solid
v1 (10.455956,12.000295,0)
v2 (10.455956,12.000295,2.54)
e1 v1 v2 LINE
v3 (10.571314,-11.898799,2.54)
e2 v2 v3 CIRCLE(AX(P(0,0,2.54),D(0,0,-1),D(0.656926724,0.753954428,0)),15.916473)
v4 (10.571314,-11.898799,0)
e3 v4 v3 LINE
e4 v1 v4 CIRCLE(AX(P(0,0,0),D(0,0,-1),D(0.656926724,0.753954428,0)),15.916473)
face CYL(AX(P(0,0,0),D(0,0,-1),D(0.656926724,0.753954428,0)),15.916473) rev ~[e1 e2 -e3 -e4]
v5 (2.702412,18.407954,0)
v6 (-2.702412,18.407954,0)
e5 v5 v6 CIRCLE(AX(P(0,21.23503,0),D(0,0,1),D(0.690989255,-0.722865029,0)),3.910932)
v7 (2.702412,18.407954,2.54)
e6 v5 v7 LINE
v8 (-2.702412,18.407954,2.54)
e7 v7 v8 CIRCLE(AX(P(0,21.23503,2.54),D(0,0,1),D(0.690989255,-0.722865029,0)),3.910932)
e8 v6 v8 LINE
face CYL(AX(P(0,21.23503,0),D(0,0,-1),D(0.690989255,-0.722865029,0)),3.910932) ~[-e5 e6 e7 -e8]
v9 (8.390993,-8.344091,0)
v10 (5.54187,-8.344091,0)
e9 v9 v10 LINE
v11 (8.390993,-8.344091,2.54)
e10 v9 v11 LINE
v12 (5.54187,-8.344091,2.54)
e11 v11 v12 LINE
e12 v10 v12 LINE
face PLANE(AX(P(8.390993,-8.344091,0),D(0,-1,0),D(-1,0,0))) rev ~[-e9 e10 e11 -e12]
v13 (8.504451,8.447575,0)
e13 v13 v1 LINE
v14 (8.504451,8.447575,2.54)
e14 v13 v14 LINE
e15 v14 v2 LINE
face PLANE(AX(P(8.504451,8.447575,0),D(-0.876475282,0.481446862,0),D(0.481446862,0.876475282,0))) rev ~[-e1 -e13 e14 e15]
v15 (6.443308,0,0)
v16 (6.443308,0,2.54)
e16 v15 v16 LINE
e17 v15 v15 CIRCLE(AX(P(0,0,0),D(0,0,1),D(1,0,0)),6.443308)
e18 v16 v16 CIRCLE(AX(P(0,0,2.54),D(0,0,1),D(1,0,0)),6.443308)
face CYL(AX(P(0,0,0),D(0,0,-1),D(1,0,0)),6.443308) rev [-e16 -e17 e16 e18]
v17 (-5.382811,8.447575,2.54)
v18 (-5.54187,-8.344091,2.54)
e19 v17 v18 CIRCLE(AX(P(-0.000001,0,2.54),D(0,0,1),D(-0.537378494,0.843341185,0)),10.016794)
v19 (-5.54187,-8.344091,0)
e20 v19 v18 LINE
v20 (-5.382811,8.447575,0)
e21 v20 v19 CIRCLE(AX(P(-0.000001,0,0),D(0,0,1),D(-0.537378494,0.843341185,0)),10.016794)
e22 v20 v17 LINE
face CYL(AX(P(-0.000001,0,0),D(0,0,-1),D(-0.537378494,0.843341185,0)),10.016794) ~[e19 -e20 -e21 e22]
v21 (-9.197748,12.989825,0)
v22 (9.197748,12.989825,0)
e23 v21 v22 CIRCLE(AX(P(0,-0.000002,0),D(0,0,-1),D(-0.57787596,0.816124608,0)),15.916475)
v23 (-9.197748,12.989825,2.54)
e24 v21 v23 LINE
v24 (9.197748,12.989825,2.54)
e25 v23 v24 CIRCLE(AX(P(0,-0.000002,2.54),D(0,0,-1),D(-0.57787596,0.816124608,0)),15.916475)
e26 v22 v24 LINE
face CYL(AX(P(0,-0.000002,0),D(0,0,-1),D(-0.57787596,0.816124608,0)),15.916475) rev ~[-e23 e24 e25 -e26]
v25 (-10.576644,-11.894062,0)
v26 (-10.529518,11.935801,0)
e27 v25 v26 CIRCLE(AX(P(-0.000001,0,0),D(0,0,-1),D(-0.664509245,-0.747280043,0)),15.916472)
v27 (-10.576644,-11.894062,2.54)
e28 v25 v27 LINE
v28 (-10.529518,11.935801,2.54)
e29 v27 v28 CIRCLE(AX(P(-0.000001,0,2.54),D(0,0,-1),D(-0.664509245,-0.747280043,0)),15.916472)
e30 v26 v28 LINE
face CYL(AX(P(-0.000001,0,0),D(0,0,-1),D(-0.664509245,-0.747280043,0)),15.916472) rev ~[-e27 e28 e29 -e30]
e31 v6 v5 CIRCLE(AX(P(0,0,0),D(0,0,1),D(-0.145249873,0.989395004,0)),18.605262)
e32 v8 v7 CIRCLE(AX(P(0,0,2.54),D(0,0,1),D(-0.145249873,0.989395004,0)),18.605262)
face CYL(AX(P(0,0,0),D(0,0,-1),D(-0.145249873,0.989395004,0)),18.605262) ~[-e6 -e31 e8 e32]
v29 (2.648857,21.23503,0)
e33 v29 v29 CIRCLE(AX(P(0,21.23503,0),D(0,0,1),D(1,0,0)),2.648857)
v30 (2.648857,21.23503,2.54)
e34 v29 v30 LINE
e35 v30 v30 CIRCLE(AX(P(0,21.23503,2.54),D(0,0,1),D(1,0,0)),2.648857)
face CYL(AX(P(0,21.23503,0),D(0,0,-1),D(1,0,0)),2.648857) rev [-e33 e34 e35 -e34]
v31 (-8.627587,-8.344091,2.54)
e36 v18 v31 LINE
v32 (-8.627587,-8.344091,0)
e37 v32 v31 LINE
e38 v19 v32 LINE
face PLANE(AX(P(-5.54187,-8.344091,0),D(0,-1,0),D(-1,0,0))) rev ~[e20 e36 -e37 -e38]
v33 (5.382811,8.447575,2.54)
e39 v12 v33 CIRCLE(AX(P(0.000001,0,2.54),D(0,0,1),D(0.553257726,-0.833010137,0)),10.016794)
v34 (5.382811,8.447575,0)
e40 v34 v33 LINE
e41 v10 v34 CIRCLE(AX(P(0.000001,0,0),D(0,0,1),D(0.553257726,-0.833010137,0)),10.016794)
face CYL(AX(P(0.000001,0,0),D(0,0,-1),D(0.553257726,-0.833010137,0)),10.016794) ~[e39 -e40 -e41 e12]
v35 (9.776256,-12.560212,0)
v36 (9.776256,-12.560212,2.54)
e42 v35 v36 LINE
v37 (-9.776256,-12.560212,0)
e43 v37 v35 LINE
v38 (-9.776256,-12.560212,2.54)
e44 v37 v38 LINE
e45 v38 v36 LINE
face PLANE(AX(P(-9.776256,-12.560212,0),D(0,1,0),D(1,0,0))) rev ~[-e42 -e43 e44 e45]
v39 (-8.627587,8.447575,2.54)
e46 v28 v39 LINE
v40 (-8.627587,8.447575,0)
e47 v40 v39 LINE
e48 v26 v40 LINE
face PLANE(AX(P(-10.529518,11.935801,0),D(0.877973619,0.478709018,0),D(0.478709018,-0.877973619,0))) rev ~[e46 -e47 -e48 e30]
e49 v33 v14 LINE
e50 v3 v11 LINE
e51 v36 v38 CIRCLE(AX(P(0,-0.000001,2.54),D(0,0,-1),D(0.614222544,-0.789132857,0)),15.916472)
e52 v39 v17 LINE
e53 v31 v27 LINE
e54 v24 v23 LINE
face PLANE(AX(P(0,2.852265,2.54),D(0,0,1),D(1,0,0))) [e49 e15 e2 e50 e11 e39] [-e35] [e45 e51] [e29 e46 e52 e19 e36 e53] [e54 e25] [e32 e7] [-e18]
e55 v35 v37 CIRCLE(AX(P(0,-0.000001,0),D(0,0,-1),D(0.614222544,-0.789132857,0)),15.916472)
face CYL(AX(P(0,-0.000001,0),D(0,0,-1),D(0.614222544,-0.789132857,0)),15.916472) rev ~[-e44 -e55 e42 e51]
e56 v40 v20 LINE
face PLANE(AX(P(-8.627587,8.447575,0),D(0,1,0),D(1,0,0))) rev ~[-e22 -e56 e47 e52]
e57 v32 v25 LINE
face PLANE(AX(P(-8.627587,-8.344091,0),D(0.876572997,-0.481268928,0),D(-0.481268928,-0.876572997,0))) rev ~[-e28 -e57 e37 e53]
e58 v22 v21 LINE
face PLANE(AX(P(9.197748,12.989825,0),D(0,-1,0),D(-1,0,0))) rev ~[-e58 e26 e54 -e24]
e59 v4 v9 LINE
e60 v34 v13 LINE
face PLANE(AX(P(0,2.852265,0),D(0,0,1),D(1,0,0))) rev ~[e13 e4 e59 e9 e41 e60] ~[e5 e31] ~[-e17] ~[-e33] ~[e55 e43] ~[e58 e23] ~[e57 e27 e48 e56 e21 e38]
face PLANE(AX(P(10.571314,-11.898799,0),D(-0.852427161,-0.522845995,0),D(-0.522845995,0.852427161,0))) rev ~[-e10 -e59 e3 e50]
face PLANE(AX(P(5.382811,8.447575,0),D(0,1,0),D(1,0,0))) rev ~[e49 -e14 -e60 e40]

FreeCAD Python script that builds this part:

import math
import FreeCAD as App
import Part
import Sketcher

V = App.Vector
Q = App.Units.Quantity

doc = App.newDocument("Part")
params = doc.addObject("Spreadsheet::Sheet", "Params")
for row, (alias, value) in enumerate([
    ("pad1_length", "0.1 in"),
], start=1):
    params.set(f"A{row}", alias)
    params.set(f"B{row}", "=" + value)
    params.setAlias(f"B{row}", alias)

body = doc.addObject("PartDesign::Body", "Body")

sketch1 = body.newObject("Sketcher::SketchObject", "Sketch")
sketch1.AttachmentSupport = (doc.getObject("XY_Plane"), [""])
sketch1.MapMode = "FlatFace"
sketch1.addGeometry(Part.ArcOfCircle(Part.Circle(V(0, 0, 0), V(0, 0, 1), 18.6), math.radians(98), math.radians(442)), False)
sketch1.addGeometry(Part.ArcOfCircle(Part.Circle(V(0, 21.2, 0), V(0, 0, 1), 3.9), math.radians(-46), math.radians(226)), False)
sketch1.addGeometry(Part.LineSegment(V(-8.6, -8.3, 0), V(-10.6, -11.9, 0)), False)
sketch1.addGeometry(Part.ArcOfCircle(Part.Circle(V(0, 0, 0), V(0, 0, 1), 15.9), math.radians(131), math.radians(228)), False)
sketch1.addGeometry(Part.LineSegment(V(-10.5, 11.9, 0), V(-8.6, 8.4, 0)), False)
sketch1.addGeometry(Part.LineSegment(V(-8.6, 8.4, 0), V(-5.4, 8.4, 0)), False)
sketch1.addGeometry(Part.ArcOfCircle(Part.Circle(V(0, 0, 0), V(0, 0, 1), 10), math.radians(123), math.radians(236)), False)
sketch1.addGeometry(Part.LineSegment(V(-5.5, -8.3, 0), V(-8.6, -8.3, 0)), False)
sketch1.addGeometry(Part.LineSegment(V(-9.8, -12.6, 0), V(9.8, -12.6, 0)), False)
sketch1.addGeometry(Part.ArcOfCircle(Part.Circle(V(0, 0, 0), V(0, 0, 1), 15.9), math.radians(-128), math.radians(-52)), False)
sketch1.addGeometry(Part.Circle(V(0, 0, 0), V(0, 0, 1), 6.4), False)
sketch1.addGeometry(Part.ArcOfCircle(Part.Circle(V(0, 0, 0), V(0, 0, 1), 10), math.radians(-56), math.radians(57)), False)
sketch1.addGeometry(Part.LineSegment(V(5.4, 8.4, 0), V(8.5, 8.4, 0)), False)
sketch1.addGeometry(Part.LineSegment(V(8.5, 8.4, 0), V(10.5, 12, 0)), False)
sketch1.addGeometry(Part.ArcOfCircle(Part.Circle(V(0, 0, 0), V(0, 0, 1), 15.9), math.radians(-48), math.radians(49)), False)
sketch1.addGeometry(Part.LineSegment(V(10.6, -11.9, 0), V(8.4, -8.3, 0)), False)
sketch1.addGeometry(Part.LineSegment(V(8.4, -8.3, 0), V(5.5, -8.3, 0)), False)
sketch1.addGeometry(Part.LineSegment(V(9.2, 13, 0), V(-9.2, 13, 0)), False)
sketch1.addGeometry(Part.ArcOfCircle(Part.Circle(V(0, 0, 0), V(0, 0, 1), 15.9), math.radians(55), math.radians(125)), False)
sketch1.addGeometry(Part.Circle(V(0, 21.2, 0), V(0, 0, 1), 2.6), False)
sketch1.addConstraint(Sketcher.Constraint("Coincident", 0, 1, 1, 2))
sketch1.addConstraint(Sketcher.Constraint("Coincident", 1, 1, 0, 2))
sketch1.addConstraint(Sketcher.Constraint("Coincident", 2, 2, 3, 2))
sketch1.addConstraint(Sketcher.Constraint("Coincident", 3, 1, 4, 1))
sketch1.addConstraint(Sketcher.Constraint("Coincident", 4, 2, 5, 1))
sketch1.addConstraint(Sketcher.Constraint("Coincident", 5, 2, 6, 1))
sketch1.addConstraint(Sketcher.Constraint("Coincident", 6, 2, 7, 1))
sketch1.addConstraint(Sketcher.Constraint("Coincident", 7, 2, 2, 1))
sketch1.addConstraint(Sketcher.Constraint("Coincident", 8, 1, 9, 1))
sketch1.addConstraint(Sketcher.Constraint("Coincident", 9, 2, 8, 2))
sketch1.addConstraint(Sketcher.Constraint("Coincident", 11, 2, 12, 1))
sketch1.addConstraint(Sketcher.Constraint("Coincident", 12, 2, 13, 1))
sketch1.addConstraint(Sketcher.Constraint("Coincident", 13, 2, 14, 2))
sketch1.addConstraint(Sketcher.Constraint("Coincident", 14, 1, 15, 1))
sketch1.addConstraint(Sketcher.Constraint("Coincident", 15, 2, 16, 1))
sketch1.addConstraint(Sketcher.Constraint("Coincident", 16, 2, 11, 1))
sketch1.addConstraint(Sketcher.Constraint("Coincident", 17, 1, 18, 1))
sketch1.addConstraint(Sketcher.Constraint("Coincident", 18, 2, 17, 2))
sketch1.addConstraint(Sketcher.Constraint("Horizontal", 5))
sketch1.addConstraint(Sketcher.Constraint("Horizontal", 7))
sketch1.addConstraint(Sketcher.Constraint("Horizontal", 8))
sketch1.addConstraint(Sketcher.Constraint("Horizontal", 12))
sketch1.addConstraint(Sketcher.Constraint("Horizontal", 16))
sketch1.addConstraint(Sketcher.Constraint("Horizontal", 17))
sketch1.addConstraint(Sketcher.Constraint("Coincident", 0, 3, -1, 1))
sketch1.addConstraint(Sketcher.Constraint("Coincident", 3, 3, -1, 1))
sketch1.addConstraint(Sketcher.Constraint("Coincident", 6, 3, -1, 1))
sketch1.addConstraint(Sketcher.Constraint("Coincident", 9, 3, -1, 1))
sketch1.addConstraint(Sketcher.Constraint("Coincident", 10, 3, -1, 1))
sketch1.addConstraint(Sketcher.Constraint("Coincident", 11, 3, -1, 1))
sketch1.addConstraint(Sketcher.Constraint("Coincident", 14, 3, -1, 1))
sketch1.addConstraint(Sketcher.Constraint("Coincident", 18, 3, -1, 1))
sketch1.addConstraint(Sketcher.Constraint("Coincident", 19, 3, 1, 3))
sketch1.addConstraint(Sketcher.Constraint("Equal", 3, 9))
sketch1.addConstraint(Sketcher.Constraint("Equal", 6, 11))
sketch1.addConstraint(Sketcher.Constraint("Equal", 9, 14))
sketch1.addConstraint(Sketcher.Constraint("Equal", 14, 18))
sketch1.addConstraint(Sketcher.Constraint("PointOnObject", 1, 3, -2))
sketch1.addConstraint(Sketcher.Constraint("Horizontal", 5, 2, 11, 2))
sketch1.addConstraint(Sketcher.Constraint("Horizontal", 7, 2, 15, 2))
sketch1.addConstraint(Sketcher.Constraint("Vertical", 4, 2, 7, 2))
sketch1.addConstraint(Sketcher.Constraint("Radius", 3, Q("15.916472 mm")))
sketch1.addConstraint(Sketcher.Constraint("Diameter", 10, Q("12.886616 mm")))
sketch1.addConstraint(Sketcher.Constraint("Diameter", 19, Q("5.297714 mm")))
sketch1.addConstraint(Sketcher.Constraint("Radius", 0, Q("18.605262 mm")))
sketch1.addConstraint(Sketcher.Constraint("Radius", 1, Q("3.910932 mm")))
sketch1.addConstraint(Sketcher.Constraint("Radius", 6, Q("10.016794 mm")))
sketch1.addConstraint(Sketcher.Constraint("Distance", 15, Q("4.170102 mm")))
sketch1.addConstraint(Sketcher.Constraint("DistanceX", 8, 1, 8, 2, Q("19.552512 mm")))
sketch1.addConstraint(Sketcher.Constraint("DistanceX", 12, 1, 12, 2, Q("3.12164 mm")))
sketch1.addConstraint(Sketcher.Constraint("DistanceY", -1, 1, 3, 1, Q("11.935801 mm")))
sketch1.addConstraint(Sketcher.Constraint("DistanceY", 14, 1, -1, 1, Q("11.898799 mm")))
sketch1.addConstraint(Sketcher.Constraint("Distance", 2, Q("4.049829 mm")))
sketch1.addConstraint(Sketcher.Constraint("Distance", 4, Q("3.973042 mm")))
sketch1.addConstraint(Sketcher.Constraint("DistanceX", 5, 1, 5, 2, Q("3.244776 mm")))
sketch1.addConstraint(Sketcher.Constraint("DistanceX", 7, 2, 7, 1, Q("3.085717 mm")))
sketch1.addConstraint(Sketcher.Constraint("DistanceX", 17, 2, 17, 1, Q("18.395496 mm")))
sketch1.addConstraint(Sketcher.Constraint("DistanceY", -1, 1, 1, 3, Q("21.23503 mm")))
sketch1.addConstraint(Sketcher.Constraint("DistanceY", 12, 2, 13, 2, Q("3.55272 mm")))
pad1 = body.newObject("PartDesign::Pad", "Pad")
pad1.Profile = sketch1
pad1.setExpression("Length", "Params.pad1_length")

doc.recompute()
